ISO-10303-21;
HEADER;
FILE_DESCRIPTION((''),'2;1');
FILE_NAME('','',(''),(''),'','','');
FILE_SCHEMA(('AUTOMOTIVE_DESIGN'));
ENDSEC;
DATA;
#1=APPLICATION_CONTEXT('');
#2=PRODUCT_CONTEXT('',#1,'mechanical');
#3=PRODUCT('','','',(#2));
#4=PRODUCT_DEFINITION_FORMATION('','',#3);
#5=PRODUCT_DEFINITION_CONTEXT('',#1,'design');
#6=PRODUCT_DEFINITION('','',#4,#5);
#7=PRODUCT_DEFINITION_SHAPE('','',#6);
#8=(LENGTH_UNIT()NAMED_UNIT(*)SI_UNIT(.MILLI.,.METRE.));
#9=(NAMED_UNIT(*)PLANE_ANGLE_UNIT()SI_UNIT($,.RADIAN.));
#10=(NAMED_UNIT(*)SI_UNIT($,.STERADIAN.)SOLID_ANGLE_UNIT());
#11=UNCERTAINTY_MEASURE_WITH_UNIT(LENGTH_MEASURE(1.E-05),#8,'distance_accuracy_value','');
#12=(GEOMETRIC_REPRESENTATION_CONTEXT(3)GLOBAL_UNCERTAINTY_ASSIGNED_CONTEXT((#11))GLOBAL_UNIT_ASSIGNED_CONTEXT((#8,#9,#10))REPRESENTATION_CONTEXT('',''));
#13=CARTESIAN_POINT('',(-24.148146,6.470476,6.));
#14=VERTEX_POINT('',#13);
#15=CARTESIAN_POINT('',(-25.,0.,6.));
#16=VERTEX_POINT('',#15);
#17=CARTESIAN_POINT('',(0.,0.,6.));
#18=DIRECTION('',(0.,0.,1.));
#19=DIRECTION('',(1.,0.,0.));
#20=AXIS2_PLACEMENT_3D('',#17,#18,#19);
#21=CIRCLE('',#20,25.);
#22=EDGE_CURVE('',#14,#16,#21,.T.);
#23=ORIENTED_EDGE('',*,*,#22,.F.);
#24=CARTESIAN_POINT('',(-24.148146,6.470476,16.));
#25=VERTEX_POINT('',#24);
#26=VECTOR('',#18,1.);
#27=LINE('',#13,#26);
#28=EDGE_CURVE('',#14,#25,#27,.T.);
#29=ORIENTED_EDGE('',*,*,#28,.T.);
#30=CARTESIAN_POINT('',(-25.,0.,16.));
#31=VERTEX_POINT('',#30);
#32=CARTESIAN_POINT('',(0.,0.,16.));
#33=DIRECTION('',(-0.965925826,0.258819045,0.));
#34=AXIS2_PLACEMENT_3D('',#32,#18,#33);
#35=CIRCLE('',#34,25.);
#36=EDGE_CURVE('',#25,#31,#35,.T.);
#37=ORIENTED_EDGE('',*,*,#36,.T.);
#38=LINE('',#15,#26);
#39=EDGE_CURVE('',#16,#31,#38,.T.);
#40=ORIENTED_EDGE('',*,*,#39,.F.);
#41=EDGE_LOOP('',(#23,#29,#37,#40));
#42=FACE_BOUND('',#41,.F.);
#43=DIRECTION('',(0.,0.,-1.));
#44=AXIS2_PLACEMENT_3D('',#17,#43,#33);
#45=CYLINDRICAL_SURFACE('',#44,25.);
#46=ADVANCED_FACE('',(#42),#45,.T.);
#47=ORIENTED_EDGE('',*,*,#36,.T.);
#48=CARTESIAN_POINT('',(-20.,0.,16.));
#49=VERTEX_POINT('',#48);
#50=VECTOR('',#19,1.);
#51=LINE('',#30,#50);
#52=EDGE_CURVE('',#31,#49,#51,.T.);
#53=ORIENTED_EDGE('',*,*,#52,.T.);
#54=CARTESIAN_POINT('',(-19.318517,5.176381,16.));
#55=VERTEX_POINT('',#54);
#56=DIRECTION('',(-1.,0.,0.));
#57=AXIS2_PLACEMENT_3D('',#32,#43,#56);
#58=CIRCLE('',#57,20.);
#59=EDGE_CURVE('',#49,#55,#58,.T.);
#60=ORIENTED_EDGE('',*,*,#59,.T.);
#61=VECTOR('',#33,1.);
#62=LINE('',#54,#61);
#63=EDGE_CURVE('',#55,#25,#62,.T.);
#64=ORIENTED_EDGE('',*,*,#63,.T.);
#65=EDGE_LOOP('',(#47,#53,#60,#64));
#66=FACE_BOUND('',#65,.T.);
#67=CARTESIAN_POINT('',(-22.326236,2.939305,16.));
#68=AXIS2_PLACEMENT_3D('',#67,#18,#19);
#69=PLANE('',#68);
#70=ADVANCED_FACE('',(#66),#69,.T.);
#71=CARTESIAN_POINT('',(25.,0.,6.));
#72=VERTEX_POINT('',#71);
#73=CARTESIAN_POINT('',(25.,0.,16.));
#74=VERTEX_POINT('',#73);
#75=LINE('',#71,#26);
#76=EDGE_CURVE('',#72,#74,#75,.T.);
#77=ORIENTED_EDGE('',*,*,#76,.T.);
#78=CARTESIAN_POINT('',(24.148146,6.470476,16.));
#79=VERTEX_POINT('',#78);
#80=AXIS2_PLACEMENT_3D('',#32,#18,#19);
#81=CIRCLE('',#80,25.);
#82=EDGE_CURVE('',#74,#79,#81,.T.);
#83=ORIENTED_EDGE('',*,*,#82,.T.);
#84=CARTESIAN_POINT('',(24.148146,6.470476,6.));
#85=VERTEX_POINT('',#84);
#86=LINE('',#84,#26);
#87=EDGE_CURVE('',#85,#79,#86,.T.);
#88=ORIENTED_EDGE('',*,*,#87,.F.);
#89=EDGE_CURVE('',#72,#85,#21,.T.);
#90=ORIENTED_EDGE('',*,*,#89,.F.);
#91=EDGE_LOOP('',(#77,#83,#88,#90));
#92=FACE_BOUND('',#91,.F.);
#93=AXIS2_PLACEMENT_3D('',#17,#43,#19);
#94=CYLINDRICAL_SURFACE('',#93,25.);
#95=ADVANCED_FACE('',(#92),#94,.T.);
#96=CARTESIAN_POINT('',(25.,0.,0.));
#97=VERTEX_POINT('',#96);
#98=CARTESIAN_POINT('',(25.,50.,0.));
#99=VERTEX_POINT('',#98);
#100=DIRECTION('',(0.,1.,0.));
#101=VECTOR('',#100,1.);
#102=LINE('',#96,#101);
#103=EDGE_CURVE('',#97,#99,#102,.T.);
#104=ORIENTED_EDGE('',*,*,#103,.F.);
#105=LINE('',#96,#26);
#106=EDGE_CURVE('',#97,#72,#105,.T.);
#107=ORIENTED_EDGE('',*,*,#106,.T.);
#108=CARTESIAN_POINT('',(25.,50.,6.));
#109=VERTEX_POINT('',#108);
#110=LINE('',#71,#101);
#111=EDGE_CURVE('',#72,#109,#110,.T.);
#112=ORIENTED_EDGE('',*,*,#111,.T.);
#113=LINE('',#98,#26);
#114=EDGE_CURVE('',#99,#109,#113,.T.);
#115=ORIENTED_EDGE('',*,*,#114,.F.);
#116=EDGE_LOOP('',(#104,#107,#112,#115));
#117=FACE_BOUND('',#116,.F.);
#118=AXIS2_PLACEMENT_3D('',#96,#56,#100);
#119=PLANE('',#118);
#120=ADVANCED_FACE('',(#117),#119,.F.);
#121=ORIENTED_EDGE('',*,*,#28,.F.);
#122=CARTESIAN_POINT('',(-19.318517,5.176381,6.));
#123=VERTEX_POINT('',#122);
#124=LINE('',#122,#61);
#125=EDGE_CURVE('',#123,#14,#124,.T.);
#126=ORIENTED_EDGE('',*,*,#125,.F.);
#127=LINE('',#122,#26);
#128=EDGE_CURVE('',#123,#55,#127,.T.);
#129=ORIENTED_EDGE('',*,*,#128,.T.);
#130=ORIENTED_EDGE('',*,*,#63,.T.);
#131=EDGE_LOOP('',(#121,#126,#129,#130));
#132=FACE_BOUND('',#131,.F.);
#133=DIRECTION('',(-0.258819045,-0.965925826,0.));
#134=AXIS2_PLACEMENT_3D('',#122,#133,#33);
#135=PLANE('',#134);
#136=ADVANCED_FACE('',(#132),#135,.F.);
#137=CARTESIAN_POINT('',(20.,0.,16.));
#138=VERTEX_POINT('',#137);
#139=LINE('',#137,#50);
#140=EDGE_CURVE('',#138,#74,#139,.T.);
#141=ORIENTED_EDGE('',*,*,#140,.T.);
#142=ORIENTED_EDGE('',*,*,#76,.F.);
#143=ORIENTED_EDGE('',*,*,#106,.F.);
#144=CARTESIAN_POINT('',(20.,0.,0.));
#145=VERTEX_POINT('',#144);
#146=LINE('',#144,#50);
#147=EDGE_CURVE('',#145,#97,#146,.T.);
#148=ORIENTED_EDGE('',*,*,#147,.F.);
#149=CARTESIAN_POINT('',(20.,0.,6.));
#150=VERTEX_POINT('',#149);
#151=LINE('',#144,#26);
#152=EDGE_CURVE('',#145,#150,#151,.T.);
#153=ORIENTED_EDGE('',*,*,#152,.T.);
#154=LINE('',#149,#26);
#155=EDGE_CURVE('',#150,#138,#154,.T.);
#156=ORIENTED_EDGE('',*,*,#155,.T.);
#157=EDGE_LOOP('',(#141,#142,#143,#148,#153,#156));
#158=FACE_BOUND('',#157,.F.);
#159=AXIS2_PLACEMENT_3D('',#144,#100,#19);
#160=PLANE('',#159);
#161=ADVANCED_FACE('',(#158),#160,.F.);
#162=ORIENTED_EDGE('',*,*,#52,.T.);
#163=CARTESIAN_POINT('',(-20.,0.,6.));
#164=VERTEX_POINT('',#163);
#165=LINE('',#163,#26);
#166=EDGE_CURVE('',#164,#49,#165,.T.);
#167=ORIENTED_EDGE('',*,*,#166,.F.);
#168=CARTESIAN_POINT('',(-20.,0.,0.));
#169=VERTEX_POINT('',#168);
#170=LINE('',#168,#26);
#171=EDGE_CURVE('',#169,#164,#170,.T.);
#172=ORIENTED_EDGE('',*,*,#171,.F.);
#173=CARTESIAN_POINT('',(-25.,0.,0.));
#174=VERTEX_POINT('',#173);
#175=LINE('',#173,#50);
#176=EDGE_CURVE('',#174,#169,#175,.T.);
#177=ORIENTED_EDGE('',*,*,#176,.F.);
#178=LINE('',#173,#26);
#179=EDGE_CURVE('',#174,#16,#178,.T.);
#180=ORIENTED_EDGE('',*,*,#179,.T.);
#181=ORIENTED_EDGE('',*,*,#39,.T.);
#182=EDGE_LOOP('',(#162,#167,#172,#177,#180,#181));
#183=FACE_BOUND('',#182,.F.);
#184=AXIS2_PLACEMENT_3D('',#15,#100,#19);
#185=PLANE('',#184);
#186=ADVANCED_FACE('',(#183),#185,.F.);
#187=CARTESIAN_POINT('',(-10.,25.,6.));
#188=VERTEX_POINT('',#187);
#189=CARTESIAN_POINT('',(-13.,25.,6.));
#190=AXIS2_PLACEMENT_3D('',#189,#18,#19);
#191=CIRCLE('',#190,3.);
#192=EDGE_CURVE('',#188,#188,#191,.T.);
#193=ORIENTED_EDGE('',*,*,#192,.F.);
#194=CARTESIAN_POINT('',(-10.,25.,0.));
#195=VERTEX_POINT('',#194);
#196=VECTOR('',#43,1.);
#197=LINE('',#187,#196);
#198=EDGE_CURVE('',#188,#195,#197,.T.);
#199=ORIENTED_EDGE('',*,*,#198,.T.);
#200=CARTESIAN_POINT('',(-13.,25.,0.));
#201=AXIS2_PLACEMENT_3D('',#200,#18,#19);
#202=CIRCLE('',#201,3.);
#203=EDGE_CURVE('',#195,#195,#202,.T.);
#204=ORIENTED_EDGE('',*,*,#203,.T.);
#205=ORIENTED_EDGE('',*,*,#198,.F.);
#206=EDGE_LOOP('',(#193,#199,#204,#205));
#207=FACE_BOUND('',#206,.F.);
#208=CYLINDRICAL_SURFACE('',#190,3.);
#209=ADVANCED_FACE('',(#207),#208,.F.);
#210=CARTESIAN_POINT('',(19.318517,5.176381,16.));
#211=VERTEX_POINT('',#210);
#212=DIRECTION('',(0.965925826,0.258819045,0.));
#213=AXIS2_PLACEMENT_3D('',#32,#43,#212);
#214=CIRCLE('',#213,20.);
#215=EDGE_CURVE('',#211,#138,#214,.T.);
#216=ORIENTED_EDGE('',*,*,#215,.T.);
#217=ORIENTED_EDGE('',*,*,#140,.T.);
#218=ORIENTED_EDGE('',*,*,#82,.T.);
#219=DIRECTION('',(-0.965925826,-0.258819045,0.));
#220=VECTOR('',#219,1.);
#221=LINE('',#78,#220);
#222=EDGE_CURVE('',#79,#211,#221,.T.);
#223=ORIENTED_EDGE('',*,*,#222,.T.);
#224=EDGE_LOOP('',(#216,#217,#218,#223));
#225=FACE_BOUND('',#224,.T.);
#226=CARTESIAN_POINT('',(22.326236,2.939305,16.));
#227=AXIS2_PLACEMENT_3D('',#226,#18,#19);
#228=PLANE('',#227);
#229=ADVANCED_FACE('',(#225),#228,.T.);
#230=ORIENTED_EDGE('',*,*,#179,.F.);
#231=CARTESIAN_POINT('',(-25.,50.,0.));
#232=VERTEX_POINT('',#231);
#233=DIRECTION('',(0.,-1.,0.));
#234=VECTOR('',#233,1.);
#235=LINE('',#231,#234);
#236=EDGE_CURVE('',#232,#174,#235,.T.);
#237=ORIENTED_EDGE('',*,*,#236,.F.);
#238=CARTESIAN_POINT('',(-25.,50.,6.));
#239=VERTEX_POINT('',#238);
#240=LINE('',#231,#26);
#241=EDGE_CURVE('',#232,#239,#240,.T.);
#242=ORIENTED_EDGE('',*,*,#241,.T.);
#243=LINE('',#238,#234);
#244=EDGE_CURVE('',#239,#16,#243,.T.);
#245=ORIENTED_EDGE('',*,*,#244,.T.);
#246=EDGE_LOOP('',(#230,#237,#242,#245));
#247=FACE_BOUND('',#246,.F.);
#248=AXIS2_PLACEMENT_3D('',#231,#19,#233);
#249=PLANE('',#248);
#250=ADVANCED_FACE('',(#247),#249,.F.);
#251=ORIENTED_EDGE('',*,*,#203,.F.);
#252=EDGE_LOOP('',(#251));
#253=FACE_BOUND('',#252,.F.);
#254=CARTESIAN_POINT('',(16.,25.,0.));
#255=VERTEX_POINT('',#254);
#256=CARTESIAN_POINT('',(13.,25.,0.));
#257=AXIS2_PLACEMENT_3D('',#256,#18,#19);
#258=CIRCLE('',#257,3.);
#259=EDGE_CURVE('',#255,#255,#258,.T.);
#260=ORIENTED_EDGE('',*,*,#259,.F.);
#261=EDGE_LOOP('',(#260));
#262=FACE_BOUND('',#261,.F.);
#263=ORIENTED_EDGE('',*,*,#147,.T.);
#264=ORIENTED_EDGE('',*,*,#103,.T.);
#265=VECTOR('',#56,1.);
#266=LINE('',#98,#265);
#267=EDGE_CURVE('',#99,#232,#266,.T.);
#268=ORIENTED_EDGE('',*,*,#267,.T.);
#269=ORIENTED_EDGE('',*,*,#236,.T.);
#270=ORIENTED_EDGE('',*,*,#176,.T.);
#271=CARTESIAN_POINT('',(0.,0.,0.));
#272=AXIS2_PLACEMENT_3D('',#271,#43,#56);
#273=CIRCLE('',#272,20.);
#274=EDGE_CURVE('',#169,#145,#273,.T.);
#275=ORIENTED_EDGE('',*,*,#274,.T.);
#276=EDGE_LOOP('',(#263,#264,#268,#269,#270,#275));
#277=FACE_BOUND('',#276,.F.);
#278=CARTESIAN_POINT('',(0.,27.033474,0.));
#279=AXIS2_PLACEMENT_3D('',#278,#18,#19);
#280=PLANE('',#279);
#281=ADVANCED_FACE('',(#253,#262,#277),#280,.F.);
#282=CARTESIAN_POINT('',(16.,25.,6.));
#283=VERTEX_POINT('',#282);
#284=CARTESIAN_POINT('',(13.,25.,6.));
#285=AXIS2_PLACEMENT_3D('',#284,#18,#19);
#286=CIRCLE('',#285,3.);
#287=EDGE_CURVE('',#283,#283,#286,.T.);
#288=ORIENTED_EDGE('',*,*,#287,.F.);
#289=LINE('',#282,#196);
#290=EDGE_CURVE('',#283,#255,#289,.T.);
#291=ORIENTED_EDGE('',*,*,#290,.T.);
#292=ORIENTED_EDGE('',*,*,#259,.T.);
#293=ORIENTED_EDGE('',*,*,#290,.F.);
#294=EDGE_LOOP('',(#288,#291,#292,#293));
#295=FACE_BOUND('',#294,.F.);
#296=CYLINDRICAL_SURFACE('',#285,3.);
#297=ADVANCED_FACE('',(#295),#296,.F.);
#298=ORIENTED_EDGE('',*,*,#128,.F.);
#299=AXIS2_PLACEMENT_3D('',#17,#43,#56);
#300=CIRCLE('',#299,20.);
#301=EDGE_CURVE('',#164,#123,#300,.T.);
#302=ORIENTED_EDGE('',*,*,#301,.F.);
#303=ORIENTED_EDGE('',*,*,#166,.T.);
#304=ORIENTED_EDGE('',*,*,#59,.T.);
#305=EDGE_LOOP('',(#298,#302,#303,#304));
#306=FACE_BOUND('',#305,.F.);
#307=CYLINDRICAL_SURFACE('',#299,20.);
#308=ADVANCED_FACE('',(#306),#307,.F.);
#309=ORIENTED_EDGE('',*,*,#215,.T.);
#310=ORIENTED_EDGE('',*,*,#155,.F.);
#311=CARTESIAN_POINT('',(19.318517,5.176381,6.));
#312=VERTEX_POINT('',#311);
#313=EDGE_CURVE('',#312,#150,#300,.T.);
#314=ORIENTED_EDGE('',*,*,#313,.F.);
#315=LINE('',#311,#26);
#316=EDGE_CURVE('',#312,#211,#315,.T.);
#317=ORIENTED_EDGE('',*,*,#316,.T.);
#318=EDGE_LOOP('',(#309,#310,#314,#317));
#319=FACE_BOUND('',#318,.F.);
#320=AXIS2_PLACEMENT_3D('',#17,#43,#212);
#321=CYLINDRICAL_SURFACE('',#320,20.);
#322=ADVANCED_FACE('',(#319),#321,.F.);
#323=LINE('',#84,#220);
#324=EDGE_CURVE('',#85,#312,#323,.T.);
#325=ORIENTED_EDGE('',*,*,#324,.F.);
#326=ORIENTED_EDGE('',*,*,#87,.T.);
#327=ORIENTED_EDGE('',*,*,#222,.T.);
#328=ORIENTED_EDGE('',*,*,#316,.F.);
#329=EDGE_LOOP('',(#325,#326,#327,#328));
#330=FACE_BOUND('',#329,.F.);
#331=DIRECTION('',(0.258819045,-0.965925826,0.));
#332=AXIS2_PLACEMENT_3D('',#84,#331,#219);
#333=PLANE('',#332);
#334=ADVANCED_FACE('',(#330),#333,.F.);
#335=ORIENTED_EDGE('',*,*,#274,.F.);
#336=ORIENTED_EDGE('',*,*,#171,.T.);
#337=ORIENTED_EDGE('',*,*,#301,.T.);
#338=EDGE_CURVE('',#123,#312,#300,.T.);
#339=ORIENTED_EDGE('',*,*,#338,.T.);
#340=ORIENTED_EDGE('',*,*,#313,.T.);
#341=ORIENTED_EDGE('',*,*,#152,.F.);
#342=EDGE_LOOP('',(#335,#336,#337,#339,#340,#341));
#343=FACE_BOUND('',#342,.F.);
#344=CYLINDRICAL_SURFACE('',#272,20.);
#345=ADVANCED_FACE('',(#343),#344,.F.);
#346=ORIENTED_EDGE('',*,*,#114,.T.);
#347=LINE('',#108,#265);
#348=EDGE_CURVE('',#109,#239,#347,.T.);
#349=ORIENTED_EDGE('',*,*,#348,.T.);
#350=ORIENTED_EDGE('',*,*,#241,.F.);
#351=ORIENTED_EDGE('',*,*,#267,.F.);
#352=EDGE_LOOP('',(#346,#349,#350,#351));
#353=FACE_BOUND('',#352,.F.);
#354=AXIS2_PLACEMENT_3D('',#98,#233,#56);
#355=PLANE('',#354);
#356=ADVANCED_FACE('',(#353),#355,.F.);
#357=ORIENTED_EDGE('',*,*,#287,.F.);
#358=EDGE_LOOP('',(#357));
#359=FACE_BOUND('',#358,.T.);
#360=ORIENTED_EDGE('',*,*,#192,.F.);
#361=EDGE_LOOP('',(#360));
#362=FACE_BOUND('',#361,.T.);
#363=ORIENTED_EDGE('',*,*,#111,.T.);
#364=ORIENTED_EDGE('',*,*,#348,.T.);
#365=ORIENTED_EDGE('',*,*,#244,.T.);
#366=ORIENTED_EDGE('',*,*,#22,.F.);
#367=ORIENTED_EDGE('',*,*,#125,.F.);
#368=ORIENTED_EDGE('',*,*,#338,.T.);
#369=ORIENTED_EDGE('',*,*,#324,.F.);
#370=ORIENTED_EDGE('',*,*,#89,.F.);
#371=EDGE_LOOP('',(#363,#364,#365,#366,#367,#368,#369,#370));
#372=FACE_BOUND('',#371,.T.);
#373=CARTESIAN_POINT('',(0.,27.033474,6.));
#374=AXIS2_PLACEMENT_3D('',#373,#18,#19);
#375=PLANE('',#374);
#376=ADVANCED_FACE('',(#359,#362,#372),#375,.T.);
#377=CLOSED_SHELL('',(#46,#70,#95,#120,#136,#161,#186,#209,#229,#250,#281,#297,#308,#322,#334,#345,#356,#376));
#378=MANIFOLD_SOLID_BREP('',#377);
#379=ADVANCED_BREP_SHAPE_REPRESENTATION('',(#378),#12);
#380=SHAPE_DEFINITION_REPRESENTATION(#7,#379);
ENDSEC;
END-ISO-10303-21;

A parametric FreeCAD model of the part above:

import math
import FreeCAD as App
import Part
import Sketcher

V = App.Vector
Q = App.Units.Quantity

doc = App.newDocument("Part")
body = doc.addObject("PartDesign::Body", "Body")

sketch1 = body.newObject("Sketcher::SketchObject", "Sketch")
sketch1.AttachmentSupport = (doc.getObject("XY_Plane"), [""])
sketch1.MapMode = "FlatFace"
sketch1.addGeometry(Part.LineSegment(V(20, 0, 0), V(25, 0, 0)), False)
sketch1.addGeometry(Part.ArcOfCircle(Part.Circle(V(0, 0, 0), V(0, 0, 1), 25), math.radians(0), math.radians(180)), False)
sketch1.addGeometry(Part.LineSegment(V(-25, 0, 0), V(-20, 0, 0)), False)
sketch1.addGeometry(Part.ArcOfCircle(Part.Circle(V(0, 0, 0), V(0, 0, 1), 20), math.radians(0), math.radians(180)), False)
sketch1.addConstraint(Sketcher.Constraint("Coincident", 0, 2, 1, 1))
sketch1.addConstraint(Sketcher.Constraint("Coincident", 1, 2, 2, 1))
sketch1.addConstraint(Sketcher.Constraint("Coincident", 2, 2, 3, 2))
sketch1.addConstraint(Sketcher.Constraint("Coincident", 3, 1, 0, 1))
sketch1.addConstraint(Sketcher.Constraint("Horizontal", 0))
sketch1.addConstraint(Sketcher.Constraint("Horizontal", 2))
sketch1.addConstraint(Sketcher.Constraint("Coincident", 1, 3, -1, 1))
sketch1.addConstraint(Sketcher.Constraint("Coincident", 3, 3, -1, 1))
sketch1.addConstraint(Sketcher.Constraint("PointOnObject", 0, 2, -1))
sketch1.addConstraint(Sketcher.Constraint("PointOnObject", 1, 2, -1))
sketch1.addConstraint(Sketcher.Constraint("Radius", 1, 25.0))
sketch1.addConstraint(Sketcher.Constraint("Radius", 3, 20.0))
pad1 = body.newObject("PartDesign::Pad", "Pad")
pad1.Profile = sketch1
pad1.Length = 6

sketch2 = body.newObject("Sketcher::SketchObject", "Sketch001")
sketch2.AttachmentSupport = (doc.getObject("XY_Plane"), [""])
sketch2.MapMode = "FlatFace"
sketch2.AttachmentOffset = App.Placement(V(0, 0, 6), App.Rotation())
sketch2.addGeometry(Part.ArcOfCircle(Part.Circle(V(0, 0, 0), V(0, 0, 1), 20), math.radians(165), math.radians(180)), False)
sketch2.addGeometry(Part.LineSegment(V(-19.318517, 5.176381, 0), V(-24.148146, 6.470476, 0)), False)
sketch2.addGeometry(Part.ArcOfCircle(Part.Circle(V(0, 0, 0), V(0, 0, 1), 25), math.radians(165), math.radians(180)), False)
sketch2.addGeometry(Part.LineSegment(V(-25, 0, 0), V(-20, 0, 0)), False)
sketch2.addGeometry(Part.LineSegment(V(24.148146, 6.470476, 0), V(19.318517, 5.176381, 0)), False)
sketch2.addGeometry(Part.ArcOfCircle(Part.Circle(V(0, 0, 0), V(0, 0, 1), 20), math.radians(0), math.radians(15)), False)
sketch2.addGeometry(Part.LineSegment(V(20, 0, 0), V(25, 0, 0)), False)
sketch2.addGeometry(Part.ArcOfCircle(Part.Circle(V(0, 0, 0), V(0, 0, 1), 25), math.radians(0), math.radians(15)), False)
sketch2.addConstraint(Sketcher.Constraint("Coincident", 0, 1, 1, 1))
sketch2.addConstraint(Sketcher.Constraint("Coincident", 1, 2, 2, 1))
sketch2.addConstraint(Sketcher.Constraint("Coincident", 2, 2, 3, 1))
sketch2.addConstraint(Sketcher.Constraint("Coincident", 3, 2, 0, 2))
sketch2.addConstraint(Sketcher.Constraint("Coincident", 4, 2, 5, 2))
sketch2.addConstraint(Sketcher.Constraint("Coincident", 5, 1, 6, 1))
sketch2.addConstraint(Sketcher.Constraint("Coincident", 6, 2, 7, 1))
sketch2.addConstraint(Sketcher.Constraint("Coincident", 7, 2, 4, 1))
sketch2.addConstraint(Sketcher.Constraint("Horizontal", 3))
sketch2.addConstraint(Sketcher.Constraint("Horizontal", 6))
sketch2.addConstraint(Sketcher.Constraint("Coincident", 0, 3, -1, 1))
sketch2.addConstraint(Sketcher.Constraint("Coincident", 2, 3, -1, 1))
sketch2.addConstraint(Sketcher.Constraint("Coincident", 5, 3, -1, 1))
sketch2.addConstraint(Sketcher.Constraint("Coincident", 7, 3, -1, 1))
sketch2.addConstraint(Sketcher.Constraint("Equal", 0, 5))
sketch2.addConstraint(Sketcher.Constraint("Equal", 2, 7))
sketch2.addConstraint(Sketcher.Constraint("PointOnObject", 2, 2, -1))
sketch2.addConstraint(Sketcher.Constraint("PointOnObject", 5, 1, -1))
sketch2.addConstraint(Sketcher.Constraint("Horizontal", 0, 1, 4, 2))
sketch2.addConstraint(Sketcher.Constraint("Horizontal", 1, 2, 7, 2))
sketch2.addConstraint(Sketcher.Constraint("Radius", 0, 20.0))
sketch2.addConstraint(Sketcher.Constraint("Radius", 2, 25.0))
sketch2.addConstraint(Sketcher.Constraint("Angle", 1, Q("165 deg")))
sketch2.addConstraint(Sketcher.Constraint("DistanceY", -1, 1, 0, 1, 5.176381))
pad2 = body.newObject("PartDesign::Pad", "Pad001")
pad2.Profile = sketch2
pad2.Length = 10

sketch3 = body.newObject("Sketcher::SketchObject", "Sketch002")
sketch3.AttachmentSupport = (doc.getObject("XY_Plane"), [""])
sketch3.MapMode = "FlatFace"
sketch3.addGeometry(Part.LineSegment(V(25, 50, 0), V(25, 0, 0)), False)
sketch3.addGeometry(Part.ArcOfCircle(Part.Circle(V(0, 0, 0), V(0, 0, 1), 25), math.radians(0), math.radians(180)), False)
sketch3.addGeometry(Part.LineSegment(V(-25, 0, 0), V(-25, 50, 0)), False)
sketch3.addGeometry(Part.LineSegment(V(-25, 50, 0), V(25, 50, 0)), False)
sketch3.addConstraint(Sketcher.Constraint("Tangent", 0, 2, 1, 1))
sketch3.addConstraint(Sketcher.Constraint("Tangent", 1, 2, 2, 1))
sketch3.addConstraint(Sketcher.Constraint("Coincident", 2, 2, 3, 1))
sketch3.addConstraint(Sketcher.Constraint("Coincident", 3, 2, 0, 1))
sketch3.addConstraint(Sketcher.Constraint("Vertical", 0))
sketch3.addConstraint(Sketcher.Constraint("Vertical", 2))
sketch3.addConstraint(Sketcher.Constraint("Horizontal", 3))
sketch3.addConstraint(Sketcher.Constraint("Coincident", 1, 3, -1, 1))
sketch3.addConstraint(Sketcher.Constraint("Equal", 3, 0))
sketch3.addConstraint(Sketcher.Constraint("Radius", 1, 25.0))
pad3 = body.newObject("PartDesign::Pad", "Pad002")
pad3.Profile = sketch3
pad3.Length = 6

sketch4 = body.newObject("Sketcher::SketchObject", "Sketch003")
sketch4.AttachmentSupport = (doc.getObject("XY_Plane"), [""])
sketch4.MapMode = "FlatFace"
sketch4.AttachmentOffset = App.Placement(V(0, 0, 6), App.Rotation())
sketch4.addGeometry(Part.Circle(V(13, 25, 0), V(0, 0, 1), 3), False)
sketch4.addGeometry(Part.Circle(V(-13, 25, 0), V(0, 0, 1), 3), False)
sketch4.addConstraint(Sketcher.Constraint("Equal", 0, 1))
sketch4.addConstraint(Sketcher.Constraint("Symmetric", 0, 3, 1, 3, -2))
sketch4.addConstraint(Sketcher.Constraint("Diameter", 0, 6.0))
sketch4.addConstraint(Sketcher.Constraint("DistanceX", -1, 1, 0, 3, 13.0))
sketch4.addConstraint(Sketcher.Constraint("DistanceY", -1, 1, 0, 3, 25.0))
pocket1 = body.newObject("PartDesign::Pocket", "Pocket")
pocket1.Profile = sketch4
pocket1.Type = "ThroughAll"

doc.recompute()
